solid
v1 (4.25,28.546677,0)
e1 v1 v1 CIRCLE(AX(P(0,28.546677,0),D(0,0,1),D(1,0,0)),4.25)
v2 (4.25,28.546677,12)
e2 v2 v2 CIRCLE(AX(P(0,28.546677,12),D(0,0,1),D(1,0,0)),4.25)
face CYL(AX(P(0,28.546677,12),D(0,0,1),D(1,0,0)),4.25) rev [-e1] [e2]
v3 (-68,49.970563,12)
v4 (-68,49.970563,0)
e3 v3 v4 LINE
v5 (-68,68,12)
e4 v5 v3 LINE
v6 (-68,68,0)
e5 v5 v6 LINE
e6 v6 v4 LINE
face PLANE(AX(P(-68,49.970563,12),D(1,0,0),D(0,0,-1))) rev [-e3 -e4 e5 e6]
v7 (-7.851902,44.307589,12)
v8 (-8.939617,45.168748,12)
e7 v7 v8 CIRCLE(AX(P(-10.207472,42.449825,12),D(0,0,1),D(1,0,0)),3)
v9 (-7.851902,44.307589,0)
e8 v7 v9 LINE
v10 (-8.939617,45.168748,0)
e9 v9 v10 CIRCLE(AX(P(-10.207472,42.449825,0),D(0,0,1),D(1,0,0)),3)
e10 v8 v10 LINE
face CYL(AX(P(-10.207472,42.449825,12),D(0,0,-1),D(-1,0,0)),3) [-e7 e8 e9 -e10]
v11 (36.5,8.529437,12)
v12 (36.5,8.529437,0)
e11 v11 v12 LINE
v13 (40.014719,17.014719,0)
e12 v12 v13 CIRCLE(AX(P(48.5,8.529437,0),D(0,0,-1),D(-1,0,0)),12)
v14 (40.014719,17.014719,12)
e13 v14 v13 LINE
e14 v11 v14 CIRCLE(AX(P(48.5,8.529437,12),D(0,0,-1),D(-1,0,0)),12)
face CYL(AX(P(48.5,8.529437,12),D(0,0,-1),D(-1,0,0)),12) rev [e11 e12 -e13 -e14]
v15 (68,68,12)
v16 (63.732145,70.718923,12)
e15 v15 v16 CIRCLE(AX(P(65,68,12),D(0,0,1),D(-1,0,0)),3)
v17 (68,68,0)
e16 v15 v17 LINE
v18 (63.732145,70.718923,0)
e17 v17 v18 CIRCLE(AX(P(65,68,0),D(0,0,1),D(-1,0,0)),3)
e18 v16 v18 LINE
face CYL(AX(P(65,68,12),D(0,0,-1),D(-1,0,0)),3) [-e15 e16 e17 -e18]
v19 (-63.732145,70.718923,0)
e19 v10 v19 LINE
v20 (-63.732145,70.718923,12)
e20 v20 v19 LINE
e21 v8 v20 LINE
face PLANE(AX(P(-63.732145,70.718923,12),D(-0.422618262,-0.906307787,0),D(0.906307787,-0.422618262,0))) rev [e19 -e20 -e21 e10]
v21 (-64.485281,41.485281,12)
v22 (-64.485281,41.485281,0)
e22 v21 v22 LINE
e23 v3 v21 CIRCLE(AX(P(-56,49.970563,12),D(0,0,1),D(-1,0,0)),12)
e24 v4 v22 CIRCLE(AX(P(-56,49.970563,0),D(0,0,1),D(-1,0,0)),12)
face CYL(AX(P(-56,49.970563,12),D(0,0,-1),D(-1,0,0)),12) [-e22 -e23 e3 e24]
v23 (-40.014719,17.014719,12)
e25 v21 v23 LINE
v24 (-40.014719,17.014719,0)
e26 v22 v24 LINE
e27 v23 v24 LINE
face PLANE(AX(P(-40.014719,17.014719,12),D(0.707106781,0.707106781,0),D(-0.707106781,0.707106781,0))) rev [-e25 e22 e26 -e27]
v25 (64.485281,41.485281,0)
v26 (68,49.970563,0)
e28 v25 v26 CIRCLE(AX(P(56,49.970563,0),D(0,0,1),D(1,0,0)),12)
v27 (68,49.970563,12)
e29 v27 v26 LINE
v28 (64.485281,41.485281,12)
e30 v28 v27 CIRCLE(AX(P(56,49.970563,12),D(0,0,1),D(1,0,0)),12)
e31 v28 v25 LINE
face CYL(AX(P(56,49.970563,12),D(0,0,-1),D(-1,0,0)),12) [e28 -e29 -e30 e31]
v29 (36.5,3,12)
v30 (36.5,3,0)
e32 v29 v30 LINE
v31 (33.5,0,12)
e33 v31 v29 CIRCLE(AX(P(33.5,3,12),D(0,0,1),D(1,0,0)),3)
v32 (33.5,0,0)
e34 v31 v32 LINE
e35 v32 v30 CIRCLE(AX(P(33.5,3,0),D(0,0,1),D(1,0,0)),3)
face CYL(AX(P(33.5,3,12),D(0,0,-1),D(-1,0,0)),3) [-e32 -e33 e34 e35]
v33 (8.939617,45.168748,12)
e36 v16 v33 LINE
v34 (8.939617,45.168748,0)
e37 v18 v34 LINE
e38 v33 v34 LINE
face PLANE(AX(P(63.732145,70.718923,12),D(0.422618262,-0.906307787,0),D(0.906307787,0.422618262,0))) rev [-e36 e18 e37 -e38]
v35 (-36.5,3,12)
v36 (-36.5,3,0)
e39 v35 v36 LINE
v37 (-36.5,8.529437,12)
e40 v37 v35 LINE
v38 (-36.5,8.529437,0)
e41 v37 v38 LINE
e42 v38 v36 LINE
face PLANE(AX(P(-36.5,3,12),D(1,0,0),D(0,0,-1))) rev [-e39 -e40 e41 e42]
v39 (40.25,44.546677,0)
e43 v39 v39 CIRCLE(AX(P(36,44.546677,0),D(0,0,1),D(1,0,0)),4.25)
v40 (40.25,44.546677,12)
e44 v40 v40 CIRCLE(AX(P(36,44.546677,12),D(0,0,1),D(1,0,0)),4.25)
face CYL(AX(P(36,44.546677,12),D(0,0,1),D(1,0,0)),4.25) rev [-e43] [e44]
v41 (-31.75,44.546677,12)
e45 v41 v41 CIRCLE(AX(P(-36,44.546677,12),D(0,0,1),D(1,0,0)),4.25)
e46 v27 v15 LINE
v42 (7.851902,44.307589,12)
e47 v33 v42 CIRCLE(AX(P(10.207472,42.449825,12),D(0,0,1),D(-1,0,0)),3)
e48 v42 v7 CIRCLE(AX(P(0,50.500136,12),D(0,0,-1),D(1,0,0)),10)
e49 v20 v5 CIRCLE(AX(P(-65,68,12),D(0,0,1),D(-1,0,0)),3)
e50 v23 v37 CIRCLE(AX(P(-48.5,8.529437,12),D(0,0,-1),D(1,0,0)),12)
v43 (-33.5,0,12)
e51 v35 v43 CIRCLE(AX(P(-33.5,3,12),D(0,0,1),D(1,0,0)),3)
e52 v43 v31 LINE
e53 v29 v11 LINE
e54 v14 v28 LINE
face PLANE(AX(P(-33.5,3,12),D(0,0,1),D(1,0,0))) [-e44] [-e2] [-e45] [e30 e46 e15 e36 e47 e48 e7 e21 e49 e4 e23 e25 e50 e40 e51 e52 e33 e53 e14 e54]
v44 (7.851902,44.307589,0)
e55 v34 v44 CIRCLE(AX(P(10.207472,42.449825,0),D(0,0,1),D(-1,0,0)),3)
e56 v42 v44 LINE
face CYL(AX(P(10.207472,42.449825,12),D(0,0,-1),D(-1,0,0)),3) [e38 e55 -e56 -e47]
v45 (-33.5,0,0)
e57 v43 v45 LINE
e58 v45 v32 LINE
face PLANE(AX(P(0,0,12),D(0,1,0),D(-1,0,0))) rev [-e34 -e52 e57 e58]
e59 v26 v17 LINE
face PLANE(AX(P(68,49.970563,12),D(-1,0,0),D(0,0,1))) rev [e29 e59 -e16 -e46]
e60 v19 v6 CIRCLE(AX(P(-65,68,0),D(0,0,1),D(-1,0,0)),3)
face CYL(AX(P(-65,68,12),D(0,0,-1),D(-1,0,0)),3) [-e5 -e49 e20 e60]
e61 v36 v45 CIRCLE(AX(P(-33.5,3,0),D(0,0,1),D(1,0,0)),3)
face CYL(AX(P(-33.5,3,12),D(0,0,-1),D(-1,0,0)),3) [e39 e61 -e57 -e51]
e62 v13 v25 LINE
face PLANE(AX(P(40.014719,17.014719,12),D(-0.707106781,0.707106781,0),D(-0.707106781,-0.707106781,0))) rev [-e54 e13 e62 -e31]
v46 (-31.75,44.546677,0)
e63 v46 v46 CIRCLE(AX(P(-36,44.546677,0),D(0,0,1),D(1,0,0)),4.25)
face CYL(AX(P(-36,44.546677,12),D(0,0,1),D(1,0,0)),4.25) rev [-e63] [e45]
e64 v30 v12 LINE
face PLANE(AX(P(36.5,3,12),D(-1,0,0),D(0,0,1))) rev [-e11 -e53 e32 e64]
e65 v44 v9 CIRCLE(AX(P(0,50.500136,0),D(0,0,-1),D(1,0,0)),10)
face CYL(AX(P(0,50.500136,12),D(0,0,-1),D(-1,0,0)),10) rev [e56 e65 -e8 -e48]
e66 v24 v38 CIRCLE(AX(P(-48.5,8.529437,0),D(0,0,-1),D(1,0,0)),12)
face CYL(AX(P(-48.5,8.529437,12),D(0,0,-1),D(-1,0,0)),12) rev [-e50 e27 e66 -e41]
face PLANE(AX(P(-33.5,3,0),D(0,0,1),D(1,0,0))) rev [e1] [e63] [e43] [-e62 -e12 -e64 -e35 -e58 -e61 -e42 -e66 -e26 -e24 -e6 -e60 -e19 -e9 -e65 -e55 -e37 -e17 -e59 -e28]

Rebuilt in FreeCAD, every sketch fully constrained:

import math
import FreeCAD as App
import Part
import Sketcher

V = App.Vector
Q = App.Units.Quantity

doc = App.newDocument("Part")
body = doc.addObject("PartDesign::Body", "Body")

sketch1 = body.newObject("Sketcher::SketchObject", "Sketch")
sketch1.AttachmentSupport = (doc.getObject("XY_Plane"), [""])
sketch1.MapMode = "FlatFace"
sketch1.addGeometry([
    Part.LineSegment(V(36.5, 3, 0), V(36.5, 8.5, 0)),
    Part.ArcOfCircle(Part.Circle(V(48.5, 8.5, 0), V(0, 0, 1), 12), math.radians(135), math.radians(180)),
    Part.LineSegment(V(40, 17, 0), V(64.5, 41.5, 0)),
    Part.ArcOfCircle(Part.Circle(V(56, 50, 0), V(0, 0, 1), 12), math.radians(-45), math.radians(0)),
    Part.LineSegment(V(68, 50, 0), V(68, 68, 0)),
    Part.ArcOfCircle(Part.Circle(V(65, 68, 0), V(0, 0, 1), 3), math.radians(0), math.radians(115)),
    Part.LineSegment(V(63.7, 70.7, 0), V(8.9, 45.2, 0)),
    Part.ArcOfCircle(Part.Circle(V(10.2, 42.4, 0), V(0, 0, 1), 3), math.radians(115), math.radians(142)),
    Part.ArcOfCircle(Part.Circle(V(0, 50.5, 0), V(0, 0, 1), 10), math.radians(-142), math.radians(-38)),
    Part.ArcOfCircle(Part.Circle(V(-10.2, 42.4, 0), V(0, 0, 1), 3), math.radians(38), math.radians(65)),
    Part.LineSegment(V(-8.9, 45.2, 0), V(-63.7, 70.7, 0)),
    Part.ArcOfCircle(Part.Circle(V(-65, 68, 0), V(0, 0, 1), 3), math.radians(65), math.radians(180)),
    Part.LineSegment(V(-68, 68, 0), V(-68, 50, 0)),
    Part.ArcOfCircle(Part.Circle(V(-56, 50, 0), V(0, 0, 1), 12), math.radians(-180), math.radians(-135)),
    Part.LineSegment(V(-64.5, 41.5, 0), V(-40, 17, 0)),
    Part.ArcOfCircle(Part.Circle(V(-48.5, 8.5, 0), V(0, 0, 1), 12), math.radians(0), math.radians(45)),
    Part.LineSegment(V(-36.5, 8.5, 0), V(-36.5, 3, 0)),
    Part.ArcOfCircle(Part.Circle(V(-33.5, 3, 0), V(0, 0, 1), 3), math.radians(180), math.radians(270)),
    Part.LineSegment(V(-33.5, 0, 0), V(33.5, 0, 0)),
    Part.ArcOfCircle(Part.Circle(V(33.5, 3, 0), V(0, 0, 1), 3), math.radians(-90), math.radians(0)),
], False)
sketch1.addConstraint([
    Sketcher.Constraint("Tangent", 0, 2, 1, 2),
    Sketcher.Constraint("Tangent", 1, 1, 2, 1),
    Sketcher.Constraint("Tangent", 2, 2, 3, 1),
    Sketcher.Constraint("Tangent", 3, 2, 4, 1),
    Sketcher.Constraint("Tangent", 4, 2, 5, 1),
    Sketcher.Constraint("Tangent", 5, 2, 6, 1),
    Sketcher.Constraint("Tangent", 6, 2, 7, 1),
    Sketcher.Constraint("Tangent", 7, 2, 8, 2),
    Sketcher.Constraint("Tangent", 8, 1, 9, 1),
    Sketcher.Constraint("Tangent", 9, 2, 10, 1),
    Sketcher.Constraint("Tangent", 10, 2, 11, 1),
    Sketcher.Constraint("Tangent", 11, 2, 12, 1),
    Sketcher.Constraint("Tangent", 12, 2, 13, 1),
    Sketcher.Constraint("Tangent", 13, 2, 14, 1),
    Sketcher.Constraint("Tangent", 14, 2, 15, 2),
    Sketcher.Constraint("Tangent", 15, 1, 16, 1),
    Sketcher.Constraint("Tangent", 16, 2, 17, 1),
    Sketcher.Constraint("Tangent", 17, 2, 18, 1),
    Sketcher.Constraint("Tangent", 18, 2, 19, 1),
    Sketcher.Constraint("Tangent", 19, 2, 0, 1),
    Sketcher.Constraint("Vertical", 0),
    Sketcher.Constraint("Vertical", 4),
    Sketcher.Constraint("Vertical", 12),
    Sketcher.Constraint("Vertical", 16),
    Sketcher.Constraint("Horizontal", 18),
    Sketcher.Constraint("Equal", 1, 3),
    Sketcher.Constraint("Equal", 5, 7),
    Sketcher.Constraint("Equal", 7, 9),
    Sketcher.Constraint("Equal", 9, 11),
    Sketcher.Constraint("Equal", 3, 13),
    Sketcher.Constraint("Equal", 13, 15),
    Sketcher.Constraint("Equal", 11, 17),
    Sketcher.Constraint("Equal", 17, 19),
    Sketcher.Constraint("Symmetric", 17, 2, 18, 2, -1, 1),
    Sketcher.Constraint("Symmetric", 7, 3, 9, 3, -2),
    Sketcher.Constraint("Symmetric", 5, 3, 11, 3, -2),
    Sketcher.Constraint("Symmetric", 2, 2, 13, 2, -2),
    Sketcher.Constraint("Perpendicular", 2, 14),
    Sketcher.Constraint("Radius", 1, 12.0),
    Sketcher.Constraint("Radius", 5, 3.0),
    Sketcher.Constraint("Radius", 8, 10.0),
    Sketcher.Constraint("DistanceX", 18, 1, 18, 2, 67.0),
    Sketcher.Constraint("Angle", 6, Q("-155 deg")),
    Sketcher.Constraint("DistanceX", -1, 1, 3, 3, 56.0),
    Sketcher.Constraint("DistanceY", -1, 1, 5, 3, 68.0),
    Sketcher.Constraint("DistanceX", -1, 1, 7, 2, 7.851902),
    Sketcher.Constraint("DistanceY", 1, 3, 8, 3, 41.970699),
])
pad1 = body.newObject("PartDesign::Pad", "Pad")
pad1.Profile = sketch1
pad1.Length = 12

sketch2 = body.newObject("Sketcher::SketchObject", "Sketch001")
sketch2.AttachmentSupport = (doc.getObject("XY_Plane"), [""])
sketch2.MapMode = "FlatFace"
sketch2.AttachmentOffset = App.Placement(V(0, 0, 12), App.Rotation())
sketch2.addGeometry([
    Part.Circle(V(-36, 44.5, 0), V(0, 0, 1), 4.2),
    Part.Circle(V(0, 28.5, 0), V(0, 0, 1), 4.2),
    Part.Circle(V(36, 44.5, 0), V(0, 0, 1), 4.2),
], False)
sketch2.addConstraint([
    Sketcher.Constraint("Equal", 0, 1),
    Sketcher.Constraint("Equal", 1, 2),
    Sketcher.Constraint("Symmetric", 0, 3, 2, 3, -2),
    Sketcher.Constraint("PointOnObject", 1, 3, -2),
    Sketcher.Constraint("Diameter", 0, 8.5),
    Sketcher.Constraint("DistanceX", 0, 3, -1, 1, 36.0),
    Sketcher.Constraint("DistanceY", 1, 3, 0, 3, 16.0),
    Sketcher.Constraint("DistanceY", -1, 1, 0, 3, 44.546677),
])
doc.recompute()
hole = body.newObject("PartDesign::Hole", "Hole")
hole.Profile = sketch2
hole.ThreadType = "None"
hole.Diameter = 8.5
hole.DepthType = "Dimension"
hole.Depth = 22
hole.DrillPoint = "Angled"
hole.DrillPointAngle = 118

doc.recompute()
